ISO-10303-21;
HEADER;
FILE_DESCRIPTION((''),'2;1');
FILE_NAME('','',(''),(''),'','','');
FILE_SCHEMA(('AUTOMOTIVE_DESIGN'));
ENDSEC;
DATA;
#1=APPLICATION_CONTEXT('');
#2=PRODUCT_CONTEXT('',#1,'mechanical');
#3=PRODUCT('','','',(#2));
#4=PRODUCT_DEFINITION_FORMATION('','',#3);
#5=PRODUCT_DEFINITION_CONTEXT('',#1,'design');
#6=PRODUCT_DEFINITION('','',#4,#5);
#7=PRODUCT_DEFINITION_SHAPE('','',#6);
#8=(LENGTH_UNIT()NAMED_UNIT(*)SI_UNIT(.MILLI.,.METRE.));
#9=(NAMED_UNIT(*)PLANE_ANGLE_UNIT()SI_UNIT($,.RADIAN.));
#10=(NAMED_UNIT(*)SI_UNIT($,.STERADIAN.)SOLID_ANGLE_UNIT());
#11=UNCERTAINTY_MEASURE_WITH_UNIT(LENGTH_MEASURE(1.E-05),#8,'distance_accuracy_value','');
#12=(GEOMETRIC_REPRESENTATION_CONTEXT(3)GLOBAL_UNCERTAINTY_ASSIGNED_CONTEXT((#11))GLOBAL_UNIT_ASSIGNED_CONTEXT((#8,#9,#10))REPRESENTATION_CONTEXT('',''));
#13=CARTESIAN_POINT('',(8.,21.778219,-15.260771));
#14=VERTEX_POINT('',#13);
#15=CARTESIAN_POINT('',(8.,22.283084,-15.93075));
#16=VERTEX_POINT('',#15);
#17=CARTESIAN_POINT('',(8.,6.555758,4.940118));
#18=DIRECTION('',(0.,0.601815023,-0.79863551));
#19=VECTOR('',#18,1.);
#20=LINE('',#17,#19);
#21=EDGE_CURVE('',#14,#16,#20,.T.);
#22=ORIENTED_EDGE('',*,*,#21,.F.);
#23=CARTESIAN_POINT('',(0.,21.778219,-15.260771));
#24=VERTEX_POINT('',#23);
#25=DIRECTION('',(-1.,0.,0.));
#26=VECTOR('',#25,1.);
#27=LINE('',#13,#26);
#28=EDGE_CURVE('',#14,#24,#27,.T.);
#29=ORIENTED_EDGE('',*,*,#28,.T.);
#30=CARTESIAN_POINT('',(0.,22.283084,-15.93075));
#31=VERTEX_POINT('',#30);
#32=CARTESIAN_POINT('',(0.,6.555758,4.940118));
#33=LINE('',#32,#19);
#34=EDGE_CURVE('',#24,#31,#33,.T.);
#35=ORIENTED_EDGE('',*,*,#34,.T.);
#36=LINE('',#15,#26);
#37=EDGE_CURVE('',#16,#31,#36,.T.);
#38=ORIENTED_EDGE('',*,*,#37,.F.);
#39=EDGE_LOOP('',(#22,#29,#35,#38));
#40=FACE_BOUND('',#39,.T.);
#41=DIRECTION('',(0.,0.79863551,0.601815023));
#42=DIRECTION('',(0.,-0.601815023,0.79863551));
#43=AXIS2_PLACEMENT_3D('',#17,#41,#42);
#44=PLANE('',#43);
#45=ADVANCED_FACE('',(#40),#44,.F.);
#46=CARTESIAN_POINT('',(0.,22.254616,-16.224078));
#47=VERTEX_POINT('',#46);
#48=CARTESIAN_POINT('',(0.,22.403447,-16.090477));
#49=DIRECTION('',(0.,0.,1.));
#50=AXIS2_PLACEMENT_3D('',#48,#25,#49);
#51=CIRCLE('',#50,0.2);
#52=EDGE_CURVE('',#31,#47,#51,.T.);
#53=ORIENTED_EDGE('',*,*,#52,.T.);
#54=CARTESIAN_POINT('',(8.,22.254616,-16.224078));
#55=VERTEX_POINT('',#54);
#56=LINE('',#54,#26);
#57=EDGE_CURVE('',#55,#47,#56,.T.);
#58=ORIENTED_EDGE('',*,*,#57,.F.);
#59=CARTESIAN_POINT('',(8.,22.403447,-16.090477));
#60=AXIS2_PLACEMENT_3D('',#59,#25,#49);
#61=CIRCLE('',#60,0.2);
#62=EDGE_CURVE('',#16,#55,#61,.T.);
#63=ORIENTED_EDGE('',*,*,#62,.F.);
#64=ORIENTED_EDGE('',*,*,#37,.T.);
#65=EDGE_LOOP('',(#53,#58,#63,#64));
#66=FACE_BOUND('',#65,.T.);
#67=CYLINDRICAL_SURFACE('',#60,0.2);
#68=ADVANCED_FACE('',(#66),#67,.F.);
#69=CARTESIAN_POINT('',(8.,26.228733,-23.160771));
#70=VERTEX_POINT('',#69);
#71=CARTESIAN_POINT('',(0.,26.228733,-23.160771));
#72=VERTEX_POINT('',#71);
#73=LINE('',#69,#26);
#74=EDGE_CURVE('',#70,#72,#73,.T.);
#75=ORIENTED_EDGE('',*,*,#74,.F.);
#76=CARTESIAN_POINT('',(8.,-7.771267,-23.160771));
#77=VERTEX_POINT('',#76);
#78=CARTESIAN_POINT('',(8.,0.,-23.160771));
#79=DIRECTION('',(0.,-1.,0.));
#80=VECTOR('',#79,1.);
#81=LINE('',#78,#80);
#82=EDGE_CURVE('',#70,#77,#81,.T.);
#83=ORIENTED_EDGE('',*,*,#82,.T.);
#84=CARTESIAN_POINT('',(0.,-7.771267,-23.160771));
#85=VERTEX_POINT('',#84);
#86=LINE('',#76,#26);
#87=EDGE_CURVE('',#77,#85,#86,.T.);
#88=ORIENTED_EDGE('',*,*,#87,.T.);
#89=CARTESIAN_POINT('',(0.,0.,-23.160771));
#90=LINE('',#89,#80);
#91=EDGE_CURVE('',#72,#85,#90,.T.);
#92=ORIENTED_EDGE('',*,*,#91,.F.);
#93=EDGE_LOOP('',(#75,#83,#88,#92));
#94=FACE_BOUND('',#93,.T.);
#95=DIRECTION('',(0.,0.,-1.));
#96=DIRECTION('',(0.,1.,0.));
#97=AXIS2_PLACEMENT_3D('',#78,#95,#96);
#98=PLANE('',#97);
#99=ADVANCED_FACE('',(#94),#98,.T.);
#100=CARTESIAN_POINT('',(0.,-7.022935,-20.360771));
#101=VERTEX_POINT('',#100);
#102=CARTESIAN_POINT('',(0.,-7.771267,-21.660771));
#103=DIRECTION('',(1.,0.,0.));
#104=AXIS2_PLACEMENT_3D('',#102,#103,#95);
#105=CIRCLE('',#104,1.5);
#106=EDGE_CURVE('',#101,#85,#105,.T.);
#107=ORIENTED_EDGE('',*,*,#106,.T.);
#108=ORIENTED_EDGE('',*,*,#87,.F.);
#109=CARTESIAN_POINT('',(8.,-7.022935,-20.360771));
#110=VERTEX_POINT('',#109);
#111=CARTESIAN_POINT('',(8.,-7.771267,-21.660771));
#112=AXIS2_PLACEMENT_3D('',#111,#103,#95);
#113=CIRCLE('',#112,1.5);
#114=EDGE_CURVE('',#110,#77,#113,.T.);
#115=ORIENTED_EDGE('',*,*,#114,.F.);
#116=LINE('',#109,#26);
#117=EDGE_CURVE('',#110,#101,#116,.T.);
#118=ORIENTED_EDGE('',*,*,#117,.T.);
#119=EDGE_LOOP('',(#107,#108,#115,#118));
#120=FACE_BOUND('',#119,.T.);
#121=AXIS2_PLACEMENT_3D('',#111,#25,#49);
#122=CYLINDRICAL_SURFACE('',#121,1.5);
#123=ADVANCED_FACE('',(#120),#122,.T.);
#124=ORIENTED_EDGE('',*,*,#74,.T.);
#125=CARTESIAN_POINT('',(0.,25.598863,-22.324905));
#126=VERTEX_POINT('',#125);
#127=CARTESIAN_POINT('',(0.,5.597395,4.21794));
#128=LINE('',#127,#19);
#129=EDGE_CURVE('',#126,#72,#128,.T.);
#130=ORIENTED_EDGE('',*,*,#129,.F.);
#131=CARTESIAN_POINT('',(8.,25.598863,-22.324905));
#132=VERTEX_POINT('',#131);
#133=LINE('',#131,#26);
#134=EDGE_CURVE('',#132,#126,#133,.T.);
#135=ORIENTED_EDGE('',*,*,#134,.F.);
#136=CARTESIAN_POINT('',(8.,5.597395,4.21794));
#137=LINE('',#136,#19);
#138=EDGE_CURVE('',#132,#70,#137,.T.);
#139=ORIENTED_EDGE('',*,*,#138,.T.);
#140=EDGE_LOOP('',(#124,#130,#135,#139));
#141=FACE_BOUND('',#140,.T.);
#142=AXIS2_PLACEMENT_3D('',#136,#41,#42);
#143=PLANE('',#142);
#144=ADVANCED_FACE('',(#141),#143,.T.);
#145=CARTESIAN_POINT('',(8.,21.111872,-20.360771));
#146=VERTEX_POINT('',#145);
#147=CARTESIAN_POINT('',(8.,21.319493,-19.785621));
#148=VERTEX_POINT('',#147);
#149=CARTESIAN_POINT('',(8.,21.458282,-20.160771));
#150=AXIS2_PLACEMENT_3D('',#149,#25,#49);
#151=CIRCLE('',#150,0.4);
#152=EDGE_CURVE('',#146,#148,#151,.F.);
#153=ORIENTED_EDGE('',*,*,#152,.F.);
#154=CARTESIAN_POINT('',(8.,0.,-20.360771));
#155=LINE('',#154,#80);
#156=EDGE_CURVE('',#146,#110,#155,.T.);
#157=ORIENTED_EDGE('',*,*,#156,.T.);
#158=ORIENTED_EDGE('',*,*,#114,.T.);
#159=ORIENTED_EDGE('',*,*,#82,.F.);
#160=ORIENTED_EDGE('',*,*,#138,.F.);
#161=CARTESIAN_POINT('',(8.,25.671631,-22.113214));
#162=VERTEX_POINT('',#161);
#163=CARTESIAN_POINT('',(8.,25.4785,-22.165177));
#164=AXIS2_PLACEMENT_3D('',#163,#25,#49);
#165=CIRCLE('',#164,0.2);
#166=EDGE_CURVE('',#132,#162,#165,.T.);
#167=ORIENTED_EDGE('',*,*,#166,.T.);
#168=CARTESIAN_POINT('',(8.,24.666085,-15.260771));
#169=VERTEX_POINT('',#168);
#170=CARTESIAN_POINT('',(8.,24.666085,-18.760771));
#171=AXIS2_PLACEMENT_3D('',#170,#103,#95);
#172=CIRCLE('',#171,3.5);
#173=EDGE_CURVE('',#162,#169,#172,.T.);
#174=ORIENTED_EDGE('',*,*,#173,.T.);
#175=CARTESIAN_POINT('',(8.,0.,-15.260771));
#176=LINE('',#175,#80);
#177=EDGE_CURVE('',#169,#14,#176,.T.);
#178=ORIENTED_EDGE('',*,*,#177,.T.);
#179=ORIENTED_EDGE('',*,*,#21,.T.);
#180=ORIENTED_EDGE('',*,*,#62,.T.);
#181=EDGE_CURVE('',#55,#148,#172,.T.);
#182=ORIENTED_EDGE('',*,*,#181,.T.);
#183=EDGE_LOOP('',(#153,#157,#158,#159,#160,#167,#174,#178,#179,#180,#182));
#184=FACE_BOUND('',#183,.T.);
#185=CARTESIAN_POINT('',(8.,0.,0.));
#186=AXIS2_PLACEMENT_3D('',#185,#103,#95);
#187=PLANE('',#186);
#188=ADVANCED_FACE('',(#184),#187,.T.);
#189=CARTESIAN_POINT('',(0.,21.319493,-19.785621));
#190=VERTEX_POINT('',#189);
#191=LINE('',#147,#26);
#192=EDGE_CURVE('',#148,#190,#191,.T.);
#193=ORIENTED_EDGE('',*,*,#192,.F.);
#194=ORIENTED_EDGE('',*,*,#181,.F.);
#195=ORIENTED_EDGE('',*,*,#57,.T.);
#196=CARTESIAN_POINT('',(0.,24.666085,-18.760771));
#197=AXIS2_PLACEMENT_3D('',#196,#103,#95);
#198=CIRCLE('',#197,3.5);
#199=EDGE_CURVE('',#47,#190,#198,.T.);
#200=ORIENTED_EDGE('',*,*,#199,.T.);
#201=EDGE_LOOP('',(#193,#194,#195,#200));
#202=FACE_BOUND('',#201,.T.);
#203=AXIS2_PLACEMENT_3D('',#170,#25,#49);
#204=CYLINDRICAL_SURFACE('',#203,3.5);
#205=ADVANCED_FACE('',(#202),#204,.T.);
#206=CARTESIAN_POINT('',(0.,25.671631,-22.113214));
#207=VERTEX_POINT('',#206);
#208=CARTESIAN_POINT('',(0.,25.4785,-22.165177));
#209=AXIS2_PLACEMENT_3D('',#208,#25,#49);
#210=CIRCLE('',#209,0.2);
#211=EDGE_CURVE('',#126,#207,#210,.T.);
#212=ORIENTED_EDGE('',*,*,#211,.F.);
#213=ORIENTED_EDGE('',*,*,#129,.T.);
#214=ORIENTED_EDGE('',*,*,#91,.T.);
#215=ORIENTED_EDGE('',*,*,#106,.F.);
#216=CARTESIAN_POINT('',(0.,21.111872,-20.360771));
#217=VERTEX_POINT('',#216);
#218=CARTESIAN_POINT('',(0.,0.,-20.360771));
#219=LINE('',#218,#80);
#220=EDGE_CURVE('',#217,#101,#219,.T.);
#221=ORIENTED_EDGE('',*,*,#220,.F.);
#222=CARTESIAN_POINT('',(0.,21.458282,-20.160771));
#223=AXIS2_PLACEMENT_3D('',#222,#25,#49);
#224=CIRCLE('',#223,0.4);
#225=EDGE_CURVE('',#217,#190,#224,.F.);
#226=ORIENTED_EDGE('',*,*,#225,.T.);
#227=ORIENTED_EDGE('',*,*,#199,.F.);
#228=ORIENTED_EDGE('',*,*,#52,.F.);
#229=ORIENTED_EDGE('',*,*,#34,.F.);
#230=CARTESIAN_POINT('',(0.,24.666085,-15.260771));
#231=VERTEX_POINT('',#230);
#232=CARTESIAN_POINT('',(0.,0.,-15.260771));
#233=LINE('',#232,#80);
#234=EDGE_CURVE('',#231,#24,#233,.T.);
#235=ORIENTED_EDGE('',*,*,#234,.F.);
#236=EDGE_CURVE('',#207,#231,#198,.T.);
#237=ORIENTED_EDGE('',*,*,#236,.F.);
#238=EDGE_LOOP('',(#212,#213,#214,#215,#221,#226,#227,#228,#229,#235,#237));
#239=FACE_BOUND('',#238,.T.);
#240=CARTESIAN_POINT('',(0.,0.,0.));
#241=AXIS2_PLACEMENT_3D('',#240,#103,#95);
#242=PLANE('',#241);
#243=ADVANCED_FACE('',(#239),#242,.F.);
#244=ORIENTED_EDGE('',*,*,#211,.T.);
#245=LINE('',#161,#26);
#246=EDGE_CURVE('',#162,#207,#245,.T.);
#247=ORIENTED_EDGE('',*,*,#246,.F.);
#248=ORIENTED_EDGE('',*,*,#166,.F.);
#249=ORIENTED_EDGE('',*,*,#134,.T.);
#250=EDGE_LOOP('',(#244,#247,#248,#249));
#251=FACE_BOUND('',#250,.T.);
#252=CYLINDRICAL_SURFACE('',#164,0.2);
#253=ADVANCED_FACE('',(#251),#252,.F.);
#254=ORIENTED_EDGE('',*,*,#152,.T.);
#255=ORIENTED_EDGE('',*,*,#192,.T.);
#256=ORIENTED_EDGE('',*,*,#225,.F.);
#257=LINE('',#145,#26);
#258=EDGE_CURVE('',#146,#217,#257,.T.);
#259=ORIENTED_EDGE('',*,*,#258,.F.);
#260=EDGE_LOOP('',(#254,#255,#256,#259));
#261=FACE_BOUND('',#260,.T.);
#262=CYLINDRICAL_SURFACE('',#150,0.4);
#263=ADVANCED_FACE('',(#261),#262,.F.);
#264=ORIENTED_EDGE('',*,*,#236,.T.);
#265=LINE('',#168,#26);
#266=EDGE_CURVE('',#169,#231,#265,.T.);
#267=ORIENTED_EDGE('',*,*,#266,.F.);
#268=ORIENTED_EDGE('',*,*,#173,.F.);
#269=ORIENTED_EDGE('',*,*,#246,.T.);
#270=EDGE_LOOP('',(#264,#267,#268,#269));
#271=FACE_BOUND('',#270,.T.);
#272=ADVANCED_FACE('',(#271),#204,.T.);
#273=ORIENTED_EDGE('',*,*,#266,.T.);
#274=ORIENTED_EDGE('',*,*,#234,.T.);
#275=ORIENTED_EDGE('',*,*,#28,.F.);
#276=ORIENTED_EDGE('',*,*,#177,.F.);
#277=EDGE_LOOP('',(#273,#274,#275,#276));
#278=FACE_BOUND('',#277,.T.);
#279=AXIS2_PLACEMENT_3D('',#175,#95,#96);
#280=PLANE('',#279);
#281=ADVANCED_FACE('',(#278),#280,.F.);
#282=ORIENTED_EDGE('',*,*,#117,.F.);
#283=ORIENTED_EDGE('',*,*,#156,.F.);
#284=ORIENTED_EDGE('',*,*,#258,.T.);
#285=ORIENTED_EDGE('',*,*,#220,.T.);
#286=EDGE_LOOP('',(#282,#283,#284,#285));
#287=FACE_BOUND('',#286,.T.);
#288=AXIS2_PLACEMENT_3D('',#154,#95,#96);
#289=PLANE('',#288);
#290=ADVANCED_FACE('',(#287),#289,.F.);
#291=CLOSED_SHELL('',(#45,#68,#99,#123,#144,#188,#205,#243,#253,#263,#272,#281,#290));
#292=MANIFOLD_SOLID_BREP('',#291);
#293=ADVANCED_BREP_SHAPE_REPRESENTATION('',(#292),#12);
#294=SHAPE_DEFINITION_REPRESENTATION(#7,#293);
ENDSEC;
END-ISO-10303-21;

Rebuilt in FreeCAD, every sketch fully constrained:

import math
import FreeCAD as App
import Part
import Sketcher

V = App.Vector
Q = App.Units.Quantity

doc = App.newDocument("Part")
body = doc.addObject("PartDesign::Body", "Body")

sketch1 = doc.addObject("Sketcher::SketchObject", "Sketch")
body.addObject(sketch1)
sketch1.AttachmentSupport = (doc.YZ_Plane, [""])
sketch1.MapMode = "FlatFace"
sketch1.addGeometry(Part.LineSegment(V(21.8, -15.3, 0), V(22.4, -16.1, 0)), False)
sketch1.addGeometry(Part.ArcOfCircle(Part.Circle(V(24.7, -18.8, 0), V(0, 0, 1), 3.5), math.radians(130), math.radians(204)), False)
sketch1.addGeometry(Part.LineSegment(V(21.5, -20.2, 0), V(-7.8, -20.2, 0)), False)
sketch1.addGeometry(Part.ArcOfCircle(Part.Circle(V(-7.8, -21.7, 0), V(0, 0, 1), 1.5), math.radians(90), math.radians(270)), False)
sketch1.addGeometry(Part.LineSegment(V(-7.8, -23.2, 0), V(26.2, -23.2, 0)), False)
sketch1.addGeometry(Part.LineSegment(V(26.2, -23.2, 0), V(25.5, -22.2, 0)), False)
sketch1.addGeometry(Part.ArcOfCircle(Part.Circle(V(24.7, -18.8, 0), V(0, 0, 1), 3.5), math.radians(-77), math.radians(90)), False)
sketch1.addGeometry(Part.LineSegment(V(24.7, -15.3, 0), V(21.8, -15.3, 0)), False)
sketch1.addConstraint(Sketcher.Constraint("Coincident", 0, 2, 1, 1))
sketch1.addConstraint(Sketcher.Constraint("Coincident", 1, 2, 2, 1))
sketch1.addConstraint(Sketcher.Constraint("Tangent", 2, 2, 3, 1))
sketch1.addConstraint(Sketcher.Constraint("Tangent", 3, 2, 4, 1))
sketch1.addConstraint(Sketcher.Constraint("Coincident", 4, 2, 5, 1))
sketch1.addConstraint(Sketcher.Constraint("Coincident", 5, 2, 6, 1))
sketch1.addConstraint(Sketcher.Constraint("Tangent", 6, 2, 7, 1))
sketch1.addConstraint(Sketcher.Constraint("Coincident", 7, 2, 0, 1))
sketch1.addConstraint(Sketcher.Constraint("Horizontal", 2))
sketch1.addConstraint(Sketcher.Constraint("Horizontal", 4))
sketch1.addConstraint(Sketcher.Constraint("Horizontal", 7))
sketch1.addConstraint(Sketcher.Constraint("Coincident", 6, 3, 1, 3))
sketch1.addConstraint(Sketcher.Constraint("Equal", 1, 6))
sketch1.addConstraint(Sketcher.Constraint("Parallel", 0, 5))
sketch1.addConstraint(Sketcher.Constraint("Radius", 1, 3.5))
sketch1.addConstraint(Sketcher.Constraint("Radius", 3, 1.5))
sketch1.addConstraint(Sketcher.Constraint("DistanceX", 4, 1, 4, 2, 34.0))
sketch1.addConstraint(Sketcher.Constraint("Angle", 0, Q("-53 deg")))
sketch1.addConstraint(Sketcher.Constraint("DistanceY", 3, 3, 1, 3, 2.9))
sketch1.addConstraint(Sketcher.Constraint("DistanceX", 2, 2, 2, 1, 29.229549))
sketch1.addConstraint(Sketcher.Constraint("DistanceX", -1, 1, 5, 2, 25.4785))
sketch1.addConstraint(Sketcher.Constraint("DistanceY", 5, 2, 0, 2, 6.0747))
sketch1.addConstraint(Sketcher.Constraint("DistanceY", 1, 3, -1, 1, 18.760771))
pad1 = doc.addObject("PartDesign::Pad", "Pad")
body.addObject(pad1)
pad1.Profile = sketch1
pad1.Length = 8

sketch2 = doc.addObject("Sketcher::SketchObject", "Sketch001")
body.addObject(sketch2)
sketch2.AttachmentSupport = (doc.YZ_Plane, [""])
sketch2.MapMode = "FlatFace"
sketch2.addGeometry(Part.ArcOfCircle(Part.Circle(V(22.4, -16.09, 0), V(0, 0, 1), 0.2), math.radians(-138), math.radians(127)), False)
sketch2.addGeometry(Part.LineSegment(V(22.25, -16.22, 0), V(22.28, -15.93, 0)), False)
sketch2.addGeometry(Part.ArcOfCircle(Part.Circle(V(21.46, -20.16, 0), V(0, 0, 1), 0.4), math.radians(-150), math.radians(110)), False)
sketch2.addGeometry(Part.LineSegment(V(21.11, -20.36, 0), V(-7.02, -20.36, 0)), False)
sketch2.addGeometry(Part.ArcOfCircle(Part.Circle(V(-7.77, -21.66, 0), V(0, 0, 1), 1.5), math.radians(60), math.radians(90)), False)
sketch2.addGeometry(Part.LineSegment(V(-7.77, -20.16, 0), V(21.32, -20.16, 0)), False)
sketch2.addGeometry(Part.LineSegment(V(21.32, -20.16, 0), V(21.32, -19.79, 0)), False)
sketch2.addGeometry(Part.ArcOfCircle(Part.Circle(V(25.48, -22.17, 0), V(0, 0, 1), 0.2), math.radians(15), math.radians(307)), False)
sketch2.addGeometry(Part.LineSegment(V(25.67, -22.11, 0), V(25.6, -22.32, 0)), False)
sketch2.addConstraint(Sketcher.Constraint("Coincident", 0, 1, 1, 1))
sketch2.addConstraint(Sketcher.Constraint("Coincident", 1, 2, 0, 2))
sketch2.addConstraint(Sketcher.Constraint("Coincident", 2, 1, 3, 1))
sketch2.addConstraint(Sketcher.Constraint("Coincident", 3, 2, 4, 1))
sketch2.addConstraint(Sketcher.Constraint("Tangent", 4, 2, 5, 1))
sketch2.addConstraint(Sketcher.Constraint("Coincident", 5, 2, 6, 1))
sketch2.addConstraint(Sketcher.Constraint("Coincident", 6, 2, 2, 2))
sketch2.addConstraint(Sketcher.Constraint("Coincident", 7, 1, 8, 1))
sketch2.addConstraint(Sketcher.Constraint("Coincident", 8, 2, 7, 2))
sketch2.addConstraint(Sketcher.Constraint("Horizontal", 3))
sketch2.addConstraint(Sketcher.Constraint("Horizontal", 5))
sketch2.addConstraint(Sketcher.Constraint("Vertical", 6))
sketch2.addConstraint(Sketcher.Constraint("Equal", 0, 7))
sketch2.addConstraint(Sketcher.Constraint("Horizontal", 2, 3, 4, 2))
sketch2.addConstraint(Sketcher.Constraint("Radius", 0, 0.2))
sketch2.addConstraint(Sketcher.Constraint("Radius", 2, 0.4))
sketch2.addConstraint(Sketcher.Constraint("Radius", 4, 1.5))
sketch2.addConstraint(Sketcher.Constraint("DistanceY", 2, 1, 2, 3, 0.2))
sketch2.addConstraint(Sketcher.Constraint("DistanceX", 5, 1, 5, 2, 29.090759))
sketch2.addConstraint(Sketcher.Constraint("DistanceY", 6, 1, 6, 2, 0.37515))
sketch2.addConstraint(Sketcher.Constraint("DistanceX", -1, 1, 7, 3, 25.4785))
sketch2.addConstraint(Sketcher.Constraint("DistanceY", 7, 3, 0, 3, 6.0747))
sketch2.addConstraint(Sketcher.Constraint("DistanceY", 0, 1, 0, 3, 0.1336))
sketch2.addConstraint(Sketcher.Constraint("Distance", 8, 0.223848))
sketch2.addConstraint(Sketcher.Constraint("DistanceY", 2, 3, -1, 1, 20.160771))
sketch2.addConstraint(Sketcher.Constraint("DistanceY", 1, 2, -1, 1, 15.93075))
sketch2.addConstraint(Sketcher.Constraint("DistanceX", -1, 1, 7, 1, 25.671631))
sketch2.addConstraint(Sketcher.Constraint("DistanceX", 0, 1, 1, 2, 0.028469))
sketch2.addConstraint(Sketcher.Constraint("DistanceX", 4, 3, 1, 2, 30.054351))
sketch2.addConstraint(Sketcher.Constraint("DistanceX", 2, 3, 7, 1, 4.213349))
pocket1 = doc.addObject("PartDesign::Pocket", "Pocket")
body.addObject(pocket1)
pocket1.Profile = sketch2
pocket1.Type = "ThroughAll"
pocket1.Reversed = True

doc.recompute()
